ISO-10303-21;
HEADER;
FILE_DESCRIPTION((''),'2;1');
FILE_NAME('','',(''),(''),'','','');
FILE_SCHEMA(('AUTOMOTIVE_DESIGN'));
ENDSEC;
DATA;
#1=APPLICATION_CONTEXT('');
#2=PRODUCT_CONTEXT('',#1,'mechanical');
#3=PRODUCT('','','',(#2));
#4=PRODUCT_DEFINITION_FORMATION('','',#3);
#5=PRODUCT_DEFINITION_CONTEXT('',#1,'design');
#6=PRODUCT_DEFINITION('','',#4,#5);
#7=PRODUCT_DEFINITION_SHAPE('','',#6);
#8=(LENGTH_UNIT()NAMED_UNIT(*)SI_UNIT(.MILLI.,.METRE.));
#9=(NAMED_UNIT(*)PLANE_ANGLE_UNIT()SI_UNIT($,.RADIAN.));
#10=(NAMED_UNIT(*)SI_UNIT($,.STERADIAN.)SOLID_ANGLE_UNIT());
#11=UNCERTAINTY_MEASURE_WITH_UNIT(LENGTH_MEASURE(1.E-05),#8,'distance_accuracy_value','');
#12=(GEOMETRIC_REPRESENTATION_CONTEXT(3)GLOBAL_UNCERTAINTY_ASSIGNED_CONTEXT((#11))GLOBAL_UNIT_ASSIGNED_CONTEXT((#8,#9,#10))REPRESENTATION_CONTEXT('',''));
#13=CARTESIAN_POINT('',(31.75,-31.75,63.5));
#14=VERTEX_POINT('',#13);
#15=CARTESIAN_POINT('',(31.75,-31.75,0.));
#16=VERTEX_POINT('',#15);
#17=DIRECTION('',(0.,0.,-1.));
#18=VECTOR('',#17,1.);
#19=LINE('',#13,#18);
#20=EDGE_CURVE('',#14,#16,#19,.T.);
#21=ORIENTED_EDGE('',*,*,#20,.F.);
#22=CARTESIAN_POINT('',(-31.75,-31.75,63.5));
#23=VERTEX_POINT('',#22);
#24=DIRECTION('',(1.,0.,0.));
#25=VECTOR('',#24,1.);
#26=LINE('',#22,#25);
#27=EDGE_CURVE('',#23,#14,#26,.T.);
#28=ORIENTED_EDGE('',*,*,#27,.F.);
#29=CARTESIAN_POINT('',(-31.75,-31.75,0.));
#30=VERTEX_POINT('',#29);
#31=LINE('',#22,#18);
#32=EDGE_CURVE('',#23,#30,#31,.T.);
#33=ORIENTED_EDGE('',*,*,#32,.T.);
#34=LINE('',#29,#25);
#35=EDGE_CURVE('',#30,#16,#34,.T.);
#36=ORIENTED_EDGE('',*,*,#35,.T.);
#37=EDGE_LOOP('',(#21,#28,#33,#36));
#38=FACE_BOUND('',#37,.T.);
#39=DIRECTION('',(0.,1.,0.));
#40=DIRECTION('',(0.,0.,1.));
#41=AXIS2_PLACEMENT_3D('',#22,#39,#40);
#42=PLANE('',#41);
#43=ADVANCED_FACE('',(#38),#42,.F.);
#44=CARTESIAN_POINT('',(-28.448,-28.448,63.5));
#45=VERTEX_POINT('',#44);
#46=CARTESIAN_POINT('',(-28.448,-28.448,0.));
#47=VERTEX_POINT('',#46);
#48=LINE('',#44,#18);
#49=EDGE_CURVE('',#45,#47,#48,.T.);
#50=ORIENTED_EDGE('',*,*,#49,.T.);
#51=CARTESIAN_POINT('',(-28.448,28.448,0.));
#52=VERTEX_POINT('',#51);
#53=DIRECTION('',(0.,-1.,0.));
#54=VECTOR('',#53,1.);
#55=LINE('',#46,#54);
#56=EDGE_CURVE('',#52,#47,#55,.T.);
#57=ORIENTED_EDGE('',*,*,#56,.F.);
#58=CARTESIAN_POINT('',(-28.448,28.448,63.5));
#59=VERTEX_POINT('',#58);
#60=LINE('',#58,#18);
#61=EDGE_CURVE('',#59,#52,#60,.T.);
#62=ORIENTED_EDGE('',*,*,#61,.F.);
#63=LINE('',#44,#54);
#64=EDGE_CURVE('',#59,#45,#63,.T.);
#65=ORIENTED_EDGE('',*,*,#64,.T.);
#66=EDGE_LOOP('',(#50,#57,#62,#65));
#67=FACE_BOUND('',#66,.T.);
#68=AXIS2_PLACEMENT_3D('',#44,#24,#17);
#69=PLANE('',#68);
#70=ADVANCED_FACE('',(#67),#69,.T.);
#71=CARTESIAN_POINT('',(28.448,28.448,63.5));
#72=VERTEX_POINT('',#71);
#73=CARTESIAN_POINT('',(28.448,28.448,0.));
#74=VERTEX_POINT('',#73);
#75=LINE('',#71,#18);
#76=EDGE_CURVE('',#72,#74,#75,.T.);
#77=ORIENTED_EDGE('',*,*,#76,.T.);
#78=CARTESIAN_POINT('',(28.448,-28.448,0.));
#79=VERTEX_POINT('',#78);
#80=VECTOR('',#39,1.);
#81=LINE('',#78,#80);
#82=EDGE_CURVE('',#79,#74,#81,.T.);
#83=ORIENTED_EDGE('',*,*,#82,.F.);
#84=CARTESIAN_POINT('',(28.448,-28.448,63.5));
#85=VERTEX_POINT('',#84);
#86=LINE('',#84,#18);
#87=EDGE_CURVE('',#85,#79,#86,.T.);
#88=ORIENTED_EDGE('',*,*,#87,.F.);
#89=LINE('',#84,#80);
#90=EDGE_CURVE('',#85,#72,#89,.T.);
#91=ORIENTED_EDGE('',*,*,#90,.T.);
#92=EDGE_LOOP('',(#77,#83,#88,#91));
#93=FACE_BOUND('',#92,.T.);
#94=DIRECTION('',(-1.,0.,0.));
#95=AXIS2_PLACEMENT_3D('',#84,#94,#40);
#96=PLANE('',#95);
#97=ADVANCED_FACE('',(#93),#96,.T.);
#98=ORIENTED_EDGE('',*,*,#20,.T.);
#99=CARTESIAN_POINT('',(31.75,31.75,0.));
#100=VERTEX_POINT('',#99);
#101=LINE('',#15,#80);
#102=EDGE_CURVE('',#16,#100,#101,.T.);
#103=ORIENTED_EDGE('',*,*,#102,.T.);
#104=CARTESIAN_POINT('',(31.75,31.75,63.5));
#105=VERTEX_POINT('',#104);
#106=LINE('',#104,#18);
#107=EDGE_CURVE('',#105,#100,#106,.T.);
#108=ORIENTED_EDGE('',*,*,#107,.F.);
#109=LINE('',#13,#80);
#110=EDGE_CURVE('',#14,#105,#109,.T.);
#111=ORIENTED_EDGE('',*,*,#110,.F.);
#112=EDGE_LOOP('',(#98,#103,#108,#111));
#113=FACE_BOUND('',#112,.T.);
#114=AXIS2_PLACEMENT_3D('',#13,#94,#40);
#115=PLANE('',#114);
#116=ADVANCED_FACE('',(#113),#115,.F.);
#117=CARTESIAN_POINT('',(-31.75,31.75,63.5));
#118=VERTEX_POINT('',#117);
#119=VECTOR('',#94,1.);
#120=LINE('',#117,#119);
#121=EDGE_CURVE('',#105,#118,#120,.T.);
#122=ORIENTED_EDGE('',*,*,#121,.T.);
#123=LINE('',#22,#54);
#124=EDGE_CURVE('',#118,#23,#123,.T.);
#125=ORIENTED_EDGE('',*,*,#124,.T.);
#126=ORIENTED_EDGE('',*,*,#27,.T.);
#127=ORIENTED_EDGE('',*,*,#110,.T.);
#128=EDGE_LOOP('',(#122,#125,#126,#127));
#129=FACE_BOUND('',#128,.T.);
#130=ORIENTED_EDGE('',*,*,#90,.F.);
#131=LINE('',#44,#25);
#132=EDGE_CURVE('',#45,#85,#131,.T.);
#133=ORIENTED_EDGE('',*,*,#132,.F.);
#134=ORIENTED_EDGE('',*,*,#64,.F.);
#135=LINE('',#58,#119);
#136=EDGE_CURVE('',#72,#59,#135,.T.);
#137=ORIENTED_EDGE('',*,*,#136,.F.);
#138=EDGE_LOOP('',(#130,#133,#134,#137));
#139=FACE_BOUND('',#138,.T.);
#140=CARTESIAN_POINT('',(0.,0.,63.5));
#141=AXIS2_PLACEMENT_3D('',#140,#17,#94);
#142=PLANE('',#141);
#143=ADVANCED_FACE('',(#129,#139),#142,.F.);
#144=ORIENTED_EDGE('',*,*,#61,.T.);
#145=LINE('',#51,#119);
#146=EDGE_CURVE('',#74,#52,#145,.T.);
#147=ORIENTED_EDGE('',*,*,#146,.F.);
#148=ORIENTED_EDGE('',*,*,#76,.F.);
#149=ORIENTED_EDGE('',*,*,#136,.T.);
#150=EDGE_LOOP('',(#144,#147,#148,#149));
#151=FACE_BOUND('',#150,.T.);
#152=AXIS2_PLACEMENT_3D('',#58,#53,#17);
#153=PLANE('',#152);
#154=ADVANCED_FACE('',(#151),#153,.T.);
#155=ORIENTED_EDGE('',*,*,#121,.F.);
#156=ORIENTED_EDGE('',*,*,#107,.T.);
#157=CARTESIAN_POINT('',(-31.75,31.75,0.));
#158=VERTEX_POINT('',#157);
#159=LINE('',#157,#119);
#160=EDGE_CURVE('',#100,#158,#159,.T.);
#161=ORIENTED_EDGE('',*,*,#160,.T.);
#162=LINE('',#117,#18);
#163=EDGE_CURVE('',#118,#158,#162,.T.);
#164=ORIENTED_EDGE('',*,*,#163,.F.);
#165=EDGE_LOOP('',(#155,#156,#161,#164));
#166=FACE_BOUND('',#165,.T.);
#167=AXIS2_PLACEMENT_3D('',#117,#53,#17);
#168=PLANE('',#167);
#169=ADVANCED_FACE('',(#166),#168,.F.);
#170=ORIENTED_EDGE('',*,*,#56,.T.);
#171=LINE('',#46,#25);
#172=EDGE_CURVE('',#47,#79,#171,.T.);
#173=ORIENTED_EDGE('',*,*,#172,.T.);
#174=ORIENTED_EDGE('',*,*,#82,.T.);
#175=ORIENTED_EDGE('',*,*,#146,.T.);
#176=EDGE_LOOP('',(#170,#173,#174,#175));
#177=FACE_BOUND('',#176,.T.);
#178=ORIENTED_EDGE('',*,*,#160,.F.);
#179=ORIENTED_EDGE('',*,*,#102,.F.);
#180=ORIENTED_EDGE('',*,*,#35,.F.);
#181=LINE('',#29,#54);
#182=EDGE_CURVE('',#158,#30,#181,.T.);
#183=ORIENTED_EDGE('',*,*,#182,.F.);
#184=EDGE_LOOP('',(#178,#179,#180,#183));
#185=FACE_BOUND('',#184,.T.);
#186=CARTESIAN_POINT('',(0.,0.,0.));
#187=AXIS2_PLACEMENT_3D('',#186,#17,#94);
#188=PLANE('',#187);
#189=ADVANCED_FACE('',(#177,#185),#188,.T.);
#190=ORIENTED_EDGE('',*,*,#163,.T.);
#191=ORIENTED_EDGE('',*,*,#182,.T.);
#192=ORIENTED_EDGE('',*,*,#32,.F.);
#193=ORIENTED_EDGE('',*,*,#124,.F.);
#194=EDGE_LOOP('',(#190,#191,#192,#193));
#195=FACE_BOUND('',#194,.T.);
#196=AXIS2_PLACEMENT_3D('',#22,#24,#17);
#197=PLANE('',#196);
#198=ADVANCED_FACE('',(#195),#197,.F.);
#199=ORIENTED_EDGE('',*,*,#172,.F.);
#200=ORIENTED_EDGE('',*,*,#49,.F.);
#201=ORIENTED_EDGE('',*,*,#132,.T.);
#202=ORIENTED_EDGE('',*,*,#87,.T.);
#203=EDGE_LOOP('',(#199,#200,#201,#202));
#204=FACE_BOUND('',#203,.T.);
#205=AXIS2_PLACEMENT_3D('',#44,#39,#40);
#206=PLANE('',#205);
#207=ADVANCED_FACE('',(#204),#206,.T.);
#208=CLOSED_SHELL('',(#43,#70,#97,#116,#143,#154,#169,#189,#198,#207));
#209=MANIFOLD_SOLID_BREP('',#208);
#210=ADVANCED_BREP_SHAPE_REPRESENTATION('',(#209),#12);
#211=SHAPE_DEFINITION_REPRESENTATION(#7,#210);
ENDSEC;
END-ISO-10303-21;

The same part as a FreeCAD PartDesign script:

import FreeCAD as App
import Part
import Sketcher
Q = App.Units.Quantity

doc = App.newDocument("Part")
body = doc.addObject("PartDesign::Body", "Body")

# Sketch on XY plane
sketch1 = body.newObject("Sketcher::SketchObject", "Sketch")
sketch1.AttachmentSupport = (doc.getObject("XY_Plane"), [""])
sketch1.MapMode = "FlatFace"
sketch1.addGeometry(Part.LineSegment(App.Vector(-31.75, 31.75, 0), App.Vector(-31.75, -31.75, 0)), False)
sketch1.addGeometry(Part.LineSegment(App.Vector(-31.75, -31.75, 0), App.Vector(31.75, -31.75, 0)), False)
sketch1.addGeometry(Part.LineSegment(App.Vector(31.75, -31.75, 0), App.Vector(31.75, 31.75, 0)), False)
sketch1.addGeometry(Part.LineSegment(App.Vector(31.75, 31.75, 0), App.Vector(-31.75, 31.75, 0)), False)
sketch1.addGeometry(Part.LineSegment(App.Vector(28.448, -28.448, 0), App.Vector(-28.448, -28.448, 0)), False)
sketch1.addGeometry(Part.LineSegment(App.Vector(-28.448, -28.448, 0), App.Vector(-28.448, 28.448, 0)), False)
sketch1.addGeometry(Part.LineSegment(App.Vector(-28.448, 28.448, 0), App.Vector(28.448, 28.448, 0)), False)
sketch1.addGeometry(Part.LineSegment(App.Vector(28.448, 28.448, 0), App.Vector(28.448, -28.448, 0)), False)
sketch1.addConstraint(Sketcher.Constraint("Coincident", 0, 2, 1, 1))
sketch1.addConstraint(Sketcher.Constraint("Coincident", 1, 2, 2, 1))
sketch1.addConstraint(Sketcher.Constraint("Coincident", 2, 2, 3, 1))
sketch1.addConstraint(Sketcher.Constraint("Coincident", 3, 2, 0, 1))
sketch1.addConstraint(Sketcher.Constraint("Coincident", 4, 2, 5, 1))
sketch1.addConstraint(Sketcher.Constraint("Coincident", 5, 2, 6, 1))
sketch1.addConstraint(Sketcher.Constraint("Coincident", 6, 2, 7, 1))
sketch1.addConstraint(Sketcher.Constraint("Coincident", 7, 2, 4, 1))
sketch1.addConstraint(Sketcher.Constraint("Vertical", 0))
sketch1.addConstraint(Sketcher.Constraint("Horizontal", 1))
sketch1.addConstraint(Sketcher.Constraint("Vertical", 2))
sketch1.addConstraint(Sketcher.Constraint("Horizontal", 3))
sketch1.addConstraint(Sketcher.Constraint("Horizontal", 4))
sketch1.addConstraint(Sketcher.Constraint("Vertical", 5))
sketch1.addConstraint(Sketcher.Constraint("Horizontal", 6))
sketch1.addConstraint(Sketcher.Constraint("Vertical", 7))
sketch1.addConstraint(Sketcher.Constraint("Symmetric", 0, 2, 2, 2, -1, 1))
sketch1.addConstraint(Sketcher.Constraint("Symmetric", 4, 2, 6, 2, -1, 1))
sketch1.addConstraint(Sketcher.Constraint("Equal", 3, 0))
sketch1.addConstraint(Sketcher.Constraint("Equal", 6, 5))
sketch1.addConstraint(Sketcher.Constraint("DistanceX", 1, 1, 1, 2, Q("2.5 in")))
sketch1.addConstraint(Sketcher.Constraint("DistanceX", 4, 2, 4, 1, Q("2.24 in")))
pad1 = body.newObject("PartDesign::Pad", "Pad")
pad1.Profile = sketch1
pad1.Length = Q("2.5 in")

doc.recompute()
